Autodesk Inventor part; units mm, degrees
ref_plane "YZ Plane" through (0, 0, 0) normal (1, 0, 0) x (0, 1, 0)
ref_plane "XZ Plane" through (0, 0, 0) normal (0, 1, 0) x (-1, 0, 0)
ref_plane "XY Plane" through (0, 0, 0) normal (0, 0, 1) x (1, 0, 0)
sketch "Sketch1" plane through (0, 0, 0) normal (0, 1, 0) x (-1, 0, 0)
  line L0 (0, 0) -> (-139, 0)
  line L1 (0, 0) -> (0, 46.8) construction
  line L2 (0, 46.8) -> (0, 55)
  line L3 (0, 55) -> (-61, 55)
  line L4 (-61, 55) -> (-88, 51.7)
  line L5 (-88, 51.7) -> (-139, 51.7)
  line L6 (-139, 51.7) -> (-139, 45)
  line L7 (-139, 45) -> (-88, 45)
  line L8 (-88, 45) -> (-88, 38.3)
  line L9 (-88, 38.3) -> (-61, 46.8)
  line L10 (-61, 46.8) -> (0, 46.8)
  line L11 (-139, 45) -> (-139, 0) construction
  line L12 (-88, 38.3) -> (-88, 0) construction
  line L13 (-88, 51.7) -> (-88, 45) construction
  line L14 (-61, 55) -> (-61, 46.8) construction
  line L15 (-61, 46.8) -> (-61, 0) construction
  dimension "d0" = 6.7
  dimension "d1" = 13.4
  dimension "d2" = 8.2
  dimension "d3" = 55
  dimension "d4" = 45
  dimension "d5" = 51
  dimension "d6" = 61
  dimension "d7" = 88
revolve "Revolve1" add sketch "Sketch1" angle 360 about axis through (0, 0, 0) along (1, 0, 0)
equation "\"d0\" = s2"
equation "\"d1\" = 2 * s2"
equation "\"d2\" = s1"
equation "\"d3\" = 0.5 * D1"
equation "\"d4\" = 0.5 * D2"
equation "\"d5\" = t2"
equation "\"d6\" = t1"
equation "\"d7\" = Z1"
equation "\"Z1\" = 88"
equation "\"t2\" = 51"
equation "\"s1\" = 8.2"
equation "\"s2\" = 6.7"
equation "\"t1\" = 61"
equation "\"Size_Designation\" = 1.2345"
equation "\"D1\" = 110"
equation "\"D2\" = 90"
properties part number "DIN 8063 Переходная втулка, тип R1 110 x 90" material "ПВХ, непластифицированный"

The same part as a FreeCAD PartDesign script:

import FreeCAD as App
import Part
import Sketcher
from FreeCAD import Vector
Q = App.Units.Quantity

doc = App.newDocument("Part")
body = doc.addObject("PartDesign::Body", "Body")

sketch1 = body.newObject("Sketcher::SketchObject", "Sketch")
sketch1.AttachmentSupport = (doc.getObject("XZ_Plane"), [""])
sketch1.MapMode = "FlatFace"
sketch1.addGeometry([
    Part.LineSegment(Vector(61, 47, 0), Vector(0, 47, 0)),
    Part.LineSegment(Vector(0, 47, 0), Vector(0, 55, 0)),
    Part.LineSegment(Vector(0, 55, 0), Vector(61, 55, 0)),
    Part.LineSegment(Vector(61, 55, 0), Vector(88, 52, 0)),
    Part.LineSegment(Vector(88, 52, 0), Vector(139, 52, 0)),
    Part.LineSegment(Vector(139, 52, 0), Vector(139, 45, 0)),
    Part.LineSegment(Vector(139, 45, 0), Vector(88, 45, 0)),
    Part.LineSegment(Vector(88, 45, 0), Vector(88, 38, 0)),
    Part.LineSegment(Vector(88, 38, 0), Vector(61, 47, 0)),
], False)
sketch1.addConstraint([
    Sketcher.Constraint("Coincident", 0, 2, 1, 1),
    Sketcher.Constraint("Coincident", 1, 2, 2, 1),
    Sketcher.Constraint("Coincident", 2, 2, 3, 1),
    Sketcher.Constraint("Coincident", 3, 2, 4, 1),
    Sketcher.Constraint("Coincident", 4, 2, 5, 1),
    Sketcher.Constraint("Coincident", 5, 2, 6, 1),
    Sketcher.Constraint("Coincident", 6, 2, 7, 1),
    Sketcher.Constraint("Coincident", 7, 2, 8, 1),
    Sketcher.Constraint("Coincident", 8, 2, 0, 1),
    Sketcher.Constraint("Horizontal", 0),
    Sketcher.Constraint("Vertical", 1),
    Sketcher.Constraint("Horizontal", 2),
    Sketcher.Constraint("Horizontal", 4),
    Sketcher.Constraint("Vertical", 5),
    Sketcher.Constraint("Horizontal", 6),
    Sketcher.Constraint("Vertical", 7),
    Sketcher.Constraint("PointOnObject", 0, 2, -2),
    Sketcher.Constraint("Vertical", 3, 2, 6, 2),
    Sketcher.Constraint("Vertical", 2, 2, 8, 2),
    Sketcher.Constraint("Equal", 5, 7),
    Sketcher.Constraint("DistanceX", 0, 2, 0, 1, Q("61 mm")),
    Sketcher.Constraint("DistanceX", 4, 1, 4, 2, Q("51 mm")),
    Sketcher.Constraint("DistanceY", 1, 1, 1, 2, Q("8.2 mm")),
    Sketcher.Constraint("DistanceY", 5, 2, 5, 1, Q("6.7 mm")),
    Sketcher.Constraint("DistanceY", -1, 1, 1, 2, Q("55 mm")),
    Sketcher.Constraint("DistanceX", -1, 1, 3, 2, Q("88 mm")),
    Sketcher.Constraint("DistanceY", -1, 1, 5, 2, Q("45 mm")),
])
revolution = body.newObject("PartDesign::Revolution", "Revolution")
revolution.Profile = sketch1
revolution.ReferenceAxis = (sketch1, ["H_Axis"])
revolution.Angle = 360

doc.recompute()
